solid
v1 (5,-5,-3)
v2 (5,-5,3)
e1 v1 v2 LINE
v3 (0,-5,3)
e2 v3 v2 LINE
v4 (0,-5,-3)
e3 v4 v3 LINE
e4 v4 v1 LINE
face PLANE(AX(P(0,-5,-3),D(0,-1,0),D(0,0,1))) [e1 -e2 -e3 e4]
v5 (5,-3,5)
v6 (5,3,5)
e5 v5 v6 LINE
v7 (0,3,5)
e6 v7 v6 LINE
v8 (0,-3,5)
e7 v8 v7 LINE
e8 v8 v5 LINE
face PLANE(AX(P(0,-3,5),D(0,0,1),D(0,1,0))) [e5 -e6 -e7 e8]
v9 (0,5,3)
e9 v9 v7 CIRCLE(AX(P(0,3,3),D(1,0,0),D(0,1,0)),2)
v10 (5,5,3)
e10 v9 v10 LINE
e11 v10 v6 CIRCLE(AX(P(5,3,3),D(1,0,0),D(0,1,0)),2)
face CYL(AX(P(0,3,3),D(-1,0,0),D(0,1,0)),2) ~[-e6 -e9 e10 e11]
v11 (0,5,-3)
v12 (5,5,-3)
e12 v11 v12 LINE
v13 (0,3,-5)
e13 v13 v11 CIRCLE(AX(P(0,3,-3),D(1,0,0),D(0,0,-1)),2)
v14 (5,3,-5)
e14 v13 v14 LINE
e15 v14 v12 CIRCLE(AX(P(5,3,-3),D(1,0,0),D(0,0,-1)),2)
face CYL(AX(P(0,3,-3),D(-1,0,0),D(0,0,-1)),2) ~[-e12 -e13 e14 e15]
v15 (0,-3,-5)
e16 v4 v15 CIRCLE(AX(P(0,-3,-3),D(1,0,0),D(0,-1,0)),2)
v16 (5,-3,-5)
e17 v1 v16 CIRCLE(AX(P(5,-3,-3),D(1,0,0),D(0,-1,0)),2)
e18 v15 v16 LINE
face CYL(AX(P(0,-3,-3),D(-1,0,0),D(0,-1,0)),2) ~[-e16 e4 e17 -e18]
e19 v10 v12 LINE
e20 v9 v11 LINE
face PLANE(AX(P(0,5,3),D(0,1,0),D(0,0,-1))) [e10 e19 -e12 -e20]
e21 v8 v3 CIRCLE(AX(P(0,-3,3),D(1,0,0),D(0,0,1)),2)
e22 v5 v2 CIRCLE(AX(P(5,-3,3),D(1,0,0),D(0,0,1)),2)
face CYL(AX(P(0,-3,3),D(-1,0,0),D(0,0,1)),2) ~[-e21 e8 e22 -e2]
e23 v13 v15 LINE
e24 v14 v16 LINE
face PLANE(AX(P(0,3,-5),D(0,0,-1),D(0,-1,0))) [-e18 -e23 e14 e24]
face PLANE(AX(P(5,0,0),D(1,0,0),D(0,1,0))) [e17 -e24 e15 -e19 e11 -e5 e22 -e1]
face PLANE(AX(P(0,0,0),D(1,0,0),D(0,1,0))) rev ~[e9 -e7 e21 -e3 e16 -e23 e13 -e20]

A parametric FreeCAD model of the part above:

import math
import FreeCAD as App
import Part
import Sketcher

doc = App.newDocument("Part")
body = doc.addObject("PartDesign::Body", "Body")

# Sketch on YZ plane
sketch1 = doc.addObject("Sketcher::SketchObject", "Sketch")
body.addObject(sketch1)
sketch1.AttachmentSupport = (doc.YZ_Plane, [""])
sketch1.MapMode = "FlatFace"
sketch1.addGeometry([
    Part.LineSegment(App.Vector(3, 5, 0), App.Vector(-3, 5, 0)),  # 0
    Part.ArcOfCircle(Part.Circle(App.Vector(-3, 3, 0), App.Vector(0, 0, 1), 2), math.radians(90), math.radians(180)),  # 1
    Part.LineSegment(App.Vector(-5, 3, 0), App.Vector(-5, -3, 0)),  # 2
    Part.ArcOfCircle(Part.Circle(App.Vector(-3, -3, 0), App.Vector(0, 0, 1), 2), math.radians(180), math.radians(270)),  # 3
    Part.LineSegment(App.Vector(-3, -5, 0), App.Vector(3, -5, 0)),  # 4
    Part.ArcOfCircle(Part.Circle(App.Vector(3, -3, 0), App.Vector(0, 0, 1), 2), math.radians(-90), math.radians(0)),  # 5
    Part.LineSegment(App.Vector(5, -3, 0), App.Vector(5, 3, 0)),  # 6
    Part.ArcOfCircle(Part.Circle(App.Vector(3, 3, 0), App.Vector(0, 0, 1), 2), math.radians(0), math.radians(90)),  # 7
], False)
sketch1.addConstraint([
    Sketcher.Constraint("Tangent", 0, 2, 1, 1),
    Sketcher.Constraint("Tangent", 1, 2, 2, 1),
    Sketcher.Constraint("Tangent", 2, 2, 3, 1),
    Sketcher.Constraint("Tangent", 3, 2, 4, 1),
    Sketcher.Constraint("Tangent", 4, 2, 5, 1),
    Sketcher.Constraint("Tangent", 5, 2, 6, 1),
    Sketcher.Constraint("Tangent", 6, 2, 7, 1),
    Sketcher.Constraint("Tangent", 7, 2, 0, 1),
    Sketcher.Constraint("Horizontal", 0),
    Sketcher.Constraint("Vertical", 2),
    Sketcher.Constraint("Horizontal", 4),
    Sketcher.Constraint("Vertical", 6),
    Sketcher.Constraint("Equal", 1, 3),
    Sketcher.Constraint("Equal", 3, 5),
    Sketcher.Constraint("Equal", 5, 7),
    Sketcher.Constraint("Symmetric", 1, 3, 5, 3, -1, 1),
    Sketcher.Constraint("Equal", 4, 2),
    Sketcher.Constraint("Radius", 1, 2.0),
    Sketcher.Constraint("DistanceX", 0, 2, 0, 1, 6.0),
])
pad1 = doc.addObject("PartDesign::Pad", "Pad")
body.addObject(pad1)
pad1.Profile = sketch1
pad1.Length = 5

doc.recompute()
